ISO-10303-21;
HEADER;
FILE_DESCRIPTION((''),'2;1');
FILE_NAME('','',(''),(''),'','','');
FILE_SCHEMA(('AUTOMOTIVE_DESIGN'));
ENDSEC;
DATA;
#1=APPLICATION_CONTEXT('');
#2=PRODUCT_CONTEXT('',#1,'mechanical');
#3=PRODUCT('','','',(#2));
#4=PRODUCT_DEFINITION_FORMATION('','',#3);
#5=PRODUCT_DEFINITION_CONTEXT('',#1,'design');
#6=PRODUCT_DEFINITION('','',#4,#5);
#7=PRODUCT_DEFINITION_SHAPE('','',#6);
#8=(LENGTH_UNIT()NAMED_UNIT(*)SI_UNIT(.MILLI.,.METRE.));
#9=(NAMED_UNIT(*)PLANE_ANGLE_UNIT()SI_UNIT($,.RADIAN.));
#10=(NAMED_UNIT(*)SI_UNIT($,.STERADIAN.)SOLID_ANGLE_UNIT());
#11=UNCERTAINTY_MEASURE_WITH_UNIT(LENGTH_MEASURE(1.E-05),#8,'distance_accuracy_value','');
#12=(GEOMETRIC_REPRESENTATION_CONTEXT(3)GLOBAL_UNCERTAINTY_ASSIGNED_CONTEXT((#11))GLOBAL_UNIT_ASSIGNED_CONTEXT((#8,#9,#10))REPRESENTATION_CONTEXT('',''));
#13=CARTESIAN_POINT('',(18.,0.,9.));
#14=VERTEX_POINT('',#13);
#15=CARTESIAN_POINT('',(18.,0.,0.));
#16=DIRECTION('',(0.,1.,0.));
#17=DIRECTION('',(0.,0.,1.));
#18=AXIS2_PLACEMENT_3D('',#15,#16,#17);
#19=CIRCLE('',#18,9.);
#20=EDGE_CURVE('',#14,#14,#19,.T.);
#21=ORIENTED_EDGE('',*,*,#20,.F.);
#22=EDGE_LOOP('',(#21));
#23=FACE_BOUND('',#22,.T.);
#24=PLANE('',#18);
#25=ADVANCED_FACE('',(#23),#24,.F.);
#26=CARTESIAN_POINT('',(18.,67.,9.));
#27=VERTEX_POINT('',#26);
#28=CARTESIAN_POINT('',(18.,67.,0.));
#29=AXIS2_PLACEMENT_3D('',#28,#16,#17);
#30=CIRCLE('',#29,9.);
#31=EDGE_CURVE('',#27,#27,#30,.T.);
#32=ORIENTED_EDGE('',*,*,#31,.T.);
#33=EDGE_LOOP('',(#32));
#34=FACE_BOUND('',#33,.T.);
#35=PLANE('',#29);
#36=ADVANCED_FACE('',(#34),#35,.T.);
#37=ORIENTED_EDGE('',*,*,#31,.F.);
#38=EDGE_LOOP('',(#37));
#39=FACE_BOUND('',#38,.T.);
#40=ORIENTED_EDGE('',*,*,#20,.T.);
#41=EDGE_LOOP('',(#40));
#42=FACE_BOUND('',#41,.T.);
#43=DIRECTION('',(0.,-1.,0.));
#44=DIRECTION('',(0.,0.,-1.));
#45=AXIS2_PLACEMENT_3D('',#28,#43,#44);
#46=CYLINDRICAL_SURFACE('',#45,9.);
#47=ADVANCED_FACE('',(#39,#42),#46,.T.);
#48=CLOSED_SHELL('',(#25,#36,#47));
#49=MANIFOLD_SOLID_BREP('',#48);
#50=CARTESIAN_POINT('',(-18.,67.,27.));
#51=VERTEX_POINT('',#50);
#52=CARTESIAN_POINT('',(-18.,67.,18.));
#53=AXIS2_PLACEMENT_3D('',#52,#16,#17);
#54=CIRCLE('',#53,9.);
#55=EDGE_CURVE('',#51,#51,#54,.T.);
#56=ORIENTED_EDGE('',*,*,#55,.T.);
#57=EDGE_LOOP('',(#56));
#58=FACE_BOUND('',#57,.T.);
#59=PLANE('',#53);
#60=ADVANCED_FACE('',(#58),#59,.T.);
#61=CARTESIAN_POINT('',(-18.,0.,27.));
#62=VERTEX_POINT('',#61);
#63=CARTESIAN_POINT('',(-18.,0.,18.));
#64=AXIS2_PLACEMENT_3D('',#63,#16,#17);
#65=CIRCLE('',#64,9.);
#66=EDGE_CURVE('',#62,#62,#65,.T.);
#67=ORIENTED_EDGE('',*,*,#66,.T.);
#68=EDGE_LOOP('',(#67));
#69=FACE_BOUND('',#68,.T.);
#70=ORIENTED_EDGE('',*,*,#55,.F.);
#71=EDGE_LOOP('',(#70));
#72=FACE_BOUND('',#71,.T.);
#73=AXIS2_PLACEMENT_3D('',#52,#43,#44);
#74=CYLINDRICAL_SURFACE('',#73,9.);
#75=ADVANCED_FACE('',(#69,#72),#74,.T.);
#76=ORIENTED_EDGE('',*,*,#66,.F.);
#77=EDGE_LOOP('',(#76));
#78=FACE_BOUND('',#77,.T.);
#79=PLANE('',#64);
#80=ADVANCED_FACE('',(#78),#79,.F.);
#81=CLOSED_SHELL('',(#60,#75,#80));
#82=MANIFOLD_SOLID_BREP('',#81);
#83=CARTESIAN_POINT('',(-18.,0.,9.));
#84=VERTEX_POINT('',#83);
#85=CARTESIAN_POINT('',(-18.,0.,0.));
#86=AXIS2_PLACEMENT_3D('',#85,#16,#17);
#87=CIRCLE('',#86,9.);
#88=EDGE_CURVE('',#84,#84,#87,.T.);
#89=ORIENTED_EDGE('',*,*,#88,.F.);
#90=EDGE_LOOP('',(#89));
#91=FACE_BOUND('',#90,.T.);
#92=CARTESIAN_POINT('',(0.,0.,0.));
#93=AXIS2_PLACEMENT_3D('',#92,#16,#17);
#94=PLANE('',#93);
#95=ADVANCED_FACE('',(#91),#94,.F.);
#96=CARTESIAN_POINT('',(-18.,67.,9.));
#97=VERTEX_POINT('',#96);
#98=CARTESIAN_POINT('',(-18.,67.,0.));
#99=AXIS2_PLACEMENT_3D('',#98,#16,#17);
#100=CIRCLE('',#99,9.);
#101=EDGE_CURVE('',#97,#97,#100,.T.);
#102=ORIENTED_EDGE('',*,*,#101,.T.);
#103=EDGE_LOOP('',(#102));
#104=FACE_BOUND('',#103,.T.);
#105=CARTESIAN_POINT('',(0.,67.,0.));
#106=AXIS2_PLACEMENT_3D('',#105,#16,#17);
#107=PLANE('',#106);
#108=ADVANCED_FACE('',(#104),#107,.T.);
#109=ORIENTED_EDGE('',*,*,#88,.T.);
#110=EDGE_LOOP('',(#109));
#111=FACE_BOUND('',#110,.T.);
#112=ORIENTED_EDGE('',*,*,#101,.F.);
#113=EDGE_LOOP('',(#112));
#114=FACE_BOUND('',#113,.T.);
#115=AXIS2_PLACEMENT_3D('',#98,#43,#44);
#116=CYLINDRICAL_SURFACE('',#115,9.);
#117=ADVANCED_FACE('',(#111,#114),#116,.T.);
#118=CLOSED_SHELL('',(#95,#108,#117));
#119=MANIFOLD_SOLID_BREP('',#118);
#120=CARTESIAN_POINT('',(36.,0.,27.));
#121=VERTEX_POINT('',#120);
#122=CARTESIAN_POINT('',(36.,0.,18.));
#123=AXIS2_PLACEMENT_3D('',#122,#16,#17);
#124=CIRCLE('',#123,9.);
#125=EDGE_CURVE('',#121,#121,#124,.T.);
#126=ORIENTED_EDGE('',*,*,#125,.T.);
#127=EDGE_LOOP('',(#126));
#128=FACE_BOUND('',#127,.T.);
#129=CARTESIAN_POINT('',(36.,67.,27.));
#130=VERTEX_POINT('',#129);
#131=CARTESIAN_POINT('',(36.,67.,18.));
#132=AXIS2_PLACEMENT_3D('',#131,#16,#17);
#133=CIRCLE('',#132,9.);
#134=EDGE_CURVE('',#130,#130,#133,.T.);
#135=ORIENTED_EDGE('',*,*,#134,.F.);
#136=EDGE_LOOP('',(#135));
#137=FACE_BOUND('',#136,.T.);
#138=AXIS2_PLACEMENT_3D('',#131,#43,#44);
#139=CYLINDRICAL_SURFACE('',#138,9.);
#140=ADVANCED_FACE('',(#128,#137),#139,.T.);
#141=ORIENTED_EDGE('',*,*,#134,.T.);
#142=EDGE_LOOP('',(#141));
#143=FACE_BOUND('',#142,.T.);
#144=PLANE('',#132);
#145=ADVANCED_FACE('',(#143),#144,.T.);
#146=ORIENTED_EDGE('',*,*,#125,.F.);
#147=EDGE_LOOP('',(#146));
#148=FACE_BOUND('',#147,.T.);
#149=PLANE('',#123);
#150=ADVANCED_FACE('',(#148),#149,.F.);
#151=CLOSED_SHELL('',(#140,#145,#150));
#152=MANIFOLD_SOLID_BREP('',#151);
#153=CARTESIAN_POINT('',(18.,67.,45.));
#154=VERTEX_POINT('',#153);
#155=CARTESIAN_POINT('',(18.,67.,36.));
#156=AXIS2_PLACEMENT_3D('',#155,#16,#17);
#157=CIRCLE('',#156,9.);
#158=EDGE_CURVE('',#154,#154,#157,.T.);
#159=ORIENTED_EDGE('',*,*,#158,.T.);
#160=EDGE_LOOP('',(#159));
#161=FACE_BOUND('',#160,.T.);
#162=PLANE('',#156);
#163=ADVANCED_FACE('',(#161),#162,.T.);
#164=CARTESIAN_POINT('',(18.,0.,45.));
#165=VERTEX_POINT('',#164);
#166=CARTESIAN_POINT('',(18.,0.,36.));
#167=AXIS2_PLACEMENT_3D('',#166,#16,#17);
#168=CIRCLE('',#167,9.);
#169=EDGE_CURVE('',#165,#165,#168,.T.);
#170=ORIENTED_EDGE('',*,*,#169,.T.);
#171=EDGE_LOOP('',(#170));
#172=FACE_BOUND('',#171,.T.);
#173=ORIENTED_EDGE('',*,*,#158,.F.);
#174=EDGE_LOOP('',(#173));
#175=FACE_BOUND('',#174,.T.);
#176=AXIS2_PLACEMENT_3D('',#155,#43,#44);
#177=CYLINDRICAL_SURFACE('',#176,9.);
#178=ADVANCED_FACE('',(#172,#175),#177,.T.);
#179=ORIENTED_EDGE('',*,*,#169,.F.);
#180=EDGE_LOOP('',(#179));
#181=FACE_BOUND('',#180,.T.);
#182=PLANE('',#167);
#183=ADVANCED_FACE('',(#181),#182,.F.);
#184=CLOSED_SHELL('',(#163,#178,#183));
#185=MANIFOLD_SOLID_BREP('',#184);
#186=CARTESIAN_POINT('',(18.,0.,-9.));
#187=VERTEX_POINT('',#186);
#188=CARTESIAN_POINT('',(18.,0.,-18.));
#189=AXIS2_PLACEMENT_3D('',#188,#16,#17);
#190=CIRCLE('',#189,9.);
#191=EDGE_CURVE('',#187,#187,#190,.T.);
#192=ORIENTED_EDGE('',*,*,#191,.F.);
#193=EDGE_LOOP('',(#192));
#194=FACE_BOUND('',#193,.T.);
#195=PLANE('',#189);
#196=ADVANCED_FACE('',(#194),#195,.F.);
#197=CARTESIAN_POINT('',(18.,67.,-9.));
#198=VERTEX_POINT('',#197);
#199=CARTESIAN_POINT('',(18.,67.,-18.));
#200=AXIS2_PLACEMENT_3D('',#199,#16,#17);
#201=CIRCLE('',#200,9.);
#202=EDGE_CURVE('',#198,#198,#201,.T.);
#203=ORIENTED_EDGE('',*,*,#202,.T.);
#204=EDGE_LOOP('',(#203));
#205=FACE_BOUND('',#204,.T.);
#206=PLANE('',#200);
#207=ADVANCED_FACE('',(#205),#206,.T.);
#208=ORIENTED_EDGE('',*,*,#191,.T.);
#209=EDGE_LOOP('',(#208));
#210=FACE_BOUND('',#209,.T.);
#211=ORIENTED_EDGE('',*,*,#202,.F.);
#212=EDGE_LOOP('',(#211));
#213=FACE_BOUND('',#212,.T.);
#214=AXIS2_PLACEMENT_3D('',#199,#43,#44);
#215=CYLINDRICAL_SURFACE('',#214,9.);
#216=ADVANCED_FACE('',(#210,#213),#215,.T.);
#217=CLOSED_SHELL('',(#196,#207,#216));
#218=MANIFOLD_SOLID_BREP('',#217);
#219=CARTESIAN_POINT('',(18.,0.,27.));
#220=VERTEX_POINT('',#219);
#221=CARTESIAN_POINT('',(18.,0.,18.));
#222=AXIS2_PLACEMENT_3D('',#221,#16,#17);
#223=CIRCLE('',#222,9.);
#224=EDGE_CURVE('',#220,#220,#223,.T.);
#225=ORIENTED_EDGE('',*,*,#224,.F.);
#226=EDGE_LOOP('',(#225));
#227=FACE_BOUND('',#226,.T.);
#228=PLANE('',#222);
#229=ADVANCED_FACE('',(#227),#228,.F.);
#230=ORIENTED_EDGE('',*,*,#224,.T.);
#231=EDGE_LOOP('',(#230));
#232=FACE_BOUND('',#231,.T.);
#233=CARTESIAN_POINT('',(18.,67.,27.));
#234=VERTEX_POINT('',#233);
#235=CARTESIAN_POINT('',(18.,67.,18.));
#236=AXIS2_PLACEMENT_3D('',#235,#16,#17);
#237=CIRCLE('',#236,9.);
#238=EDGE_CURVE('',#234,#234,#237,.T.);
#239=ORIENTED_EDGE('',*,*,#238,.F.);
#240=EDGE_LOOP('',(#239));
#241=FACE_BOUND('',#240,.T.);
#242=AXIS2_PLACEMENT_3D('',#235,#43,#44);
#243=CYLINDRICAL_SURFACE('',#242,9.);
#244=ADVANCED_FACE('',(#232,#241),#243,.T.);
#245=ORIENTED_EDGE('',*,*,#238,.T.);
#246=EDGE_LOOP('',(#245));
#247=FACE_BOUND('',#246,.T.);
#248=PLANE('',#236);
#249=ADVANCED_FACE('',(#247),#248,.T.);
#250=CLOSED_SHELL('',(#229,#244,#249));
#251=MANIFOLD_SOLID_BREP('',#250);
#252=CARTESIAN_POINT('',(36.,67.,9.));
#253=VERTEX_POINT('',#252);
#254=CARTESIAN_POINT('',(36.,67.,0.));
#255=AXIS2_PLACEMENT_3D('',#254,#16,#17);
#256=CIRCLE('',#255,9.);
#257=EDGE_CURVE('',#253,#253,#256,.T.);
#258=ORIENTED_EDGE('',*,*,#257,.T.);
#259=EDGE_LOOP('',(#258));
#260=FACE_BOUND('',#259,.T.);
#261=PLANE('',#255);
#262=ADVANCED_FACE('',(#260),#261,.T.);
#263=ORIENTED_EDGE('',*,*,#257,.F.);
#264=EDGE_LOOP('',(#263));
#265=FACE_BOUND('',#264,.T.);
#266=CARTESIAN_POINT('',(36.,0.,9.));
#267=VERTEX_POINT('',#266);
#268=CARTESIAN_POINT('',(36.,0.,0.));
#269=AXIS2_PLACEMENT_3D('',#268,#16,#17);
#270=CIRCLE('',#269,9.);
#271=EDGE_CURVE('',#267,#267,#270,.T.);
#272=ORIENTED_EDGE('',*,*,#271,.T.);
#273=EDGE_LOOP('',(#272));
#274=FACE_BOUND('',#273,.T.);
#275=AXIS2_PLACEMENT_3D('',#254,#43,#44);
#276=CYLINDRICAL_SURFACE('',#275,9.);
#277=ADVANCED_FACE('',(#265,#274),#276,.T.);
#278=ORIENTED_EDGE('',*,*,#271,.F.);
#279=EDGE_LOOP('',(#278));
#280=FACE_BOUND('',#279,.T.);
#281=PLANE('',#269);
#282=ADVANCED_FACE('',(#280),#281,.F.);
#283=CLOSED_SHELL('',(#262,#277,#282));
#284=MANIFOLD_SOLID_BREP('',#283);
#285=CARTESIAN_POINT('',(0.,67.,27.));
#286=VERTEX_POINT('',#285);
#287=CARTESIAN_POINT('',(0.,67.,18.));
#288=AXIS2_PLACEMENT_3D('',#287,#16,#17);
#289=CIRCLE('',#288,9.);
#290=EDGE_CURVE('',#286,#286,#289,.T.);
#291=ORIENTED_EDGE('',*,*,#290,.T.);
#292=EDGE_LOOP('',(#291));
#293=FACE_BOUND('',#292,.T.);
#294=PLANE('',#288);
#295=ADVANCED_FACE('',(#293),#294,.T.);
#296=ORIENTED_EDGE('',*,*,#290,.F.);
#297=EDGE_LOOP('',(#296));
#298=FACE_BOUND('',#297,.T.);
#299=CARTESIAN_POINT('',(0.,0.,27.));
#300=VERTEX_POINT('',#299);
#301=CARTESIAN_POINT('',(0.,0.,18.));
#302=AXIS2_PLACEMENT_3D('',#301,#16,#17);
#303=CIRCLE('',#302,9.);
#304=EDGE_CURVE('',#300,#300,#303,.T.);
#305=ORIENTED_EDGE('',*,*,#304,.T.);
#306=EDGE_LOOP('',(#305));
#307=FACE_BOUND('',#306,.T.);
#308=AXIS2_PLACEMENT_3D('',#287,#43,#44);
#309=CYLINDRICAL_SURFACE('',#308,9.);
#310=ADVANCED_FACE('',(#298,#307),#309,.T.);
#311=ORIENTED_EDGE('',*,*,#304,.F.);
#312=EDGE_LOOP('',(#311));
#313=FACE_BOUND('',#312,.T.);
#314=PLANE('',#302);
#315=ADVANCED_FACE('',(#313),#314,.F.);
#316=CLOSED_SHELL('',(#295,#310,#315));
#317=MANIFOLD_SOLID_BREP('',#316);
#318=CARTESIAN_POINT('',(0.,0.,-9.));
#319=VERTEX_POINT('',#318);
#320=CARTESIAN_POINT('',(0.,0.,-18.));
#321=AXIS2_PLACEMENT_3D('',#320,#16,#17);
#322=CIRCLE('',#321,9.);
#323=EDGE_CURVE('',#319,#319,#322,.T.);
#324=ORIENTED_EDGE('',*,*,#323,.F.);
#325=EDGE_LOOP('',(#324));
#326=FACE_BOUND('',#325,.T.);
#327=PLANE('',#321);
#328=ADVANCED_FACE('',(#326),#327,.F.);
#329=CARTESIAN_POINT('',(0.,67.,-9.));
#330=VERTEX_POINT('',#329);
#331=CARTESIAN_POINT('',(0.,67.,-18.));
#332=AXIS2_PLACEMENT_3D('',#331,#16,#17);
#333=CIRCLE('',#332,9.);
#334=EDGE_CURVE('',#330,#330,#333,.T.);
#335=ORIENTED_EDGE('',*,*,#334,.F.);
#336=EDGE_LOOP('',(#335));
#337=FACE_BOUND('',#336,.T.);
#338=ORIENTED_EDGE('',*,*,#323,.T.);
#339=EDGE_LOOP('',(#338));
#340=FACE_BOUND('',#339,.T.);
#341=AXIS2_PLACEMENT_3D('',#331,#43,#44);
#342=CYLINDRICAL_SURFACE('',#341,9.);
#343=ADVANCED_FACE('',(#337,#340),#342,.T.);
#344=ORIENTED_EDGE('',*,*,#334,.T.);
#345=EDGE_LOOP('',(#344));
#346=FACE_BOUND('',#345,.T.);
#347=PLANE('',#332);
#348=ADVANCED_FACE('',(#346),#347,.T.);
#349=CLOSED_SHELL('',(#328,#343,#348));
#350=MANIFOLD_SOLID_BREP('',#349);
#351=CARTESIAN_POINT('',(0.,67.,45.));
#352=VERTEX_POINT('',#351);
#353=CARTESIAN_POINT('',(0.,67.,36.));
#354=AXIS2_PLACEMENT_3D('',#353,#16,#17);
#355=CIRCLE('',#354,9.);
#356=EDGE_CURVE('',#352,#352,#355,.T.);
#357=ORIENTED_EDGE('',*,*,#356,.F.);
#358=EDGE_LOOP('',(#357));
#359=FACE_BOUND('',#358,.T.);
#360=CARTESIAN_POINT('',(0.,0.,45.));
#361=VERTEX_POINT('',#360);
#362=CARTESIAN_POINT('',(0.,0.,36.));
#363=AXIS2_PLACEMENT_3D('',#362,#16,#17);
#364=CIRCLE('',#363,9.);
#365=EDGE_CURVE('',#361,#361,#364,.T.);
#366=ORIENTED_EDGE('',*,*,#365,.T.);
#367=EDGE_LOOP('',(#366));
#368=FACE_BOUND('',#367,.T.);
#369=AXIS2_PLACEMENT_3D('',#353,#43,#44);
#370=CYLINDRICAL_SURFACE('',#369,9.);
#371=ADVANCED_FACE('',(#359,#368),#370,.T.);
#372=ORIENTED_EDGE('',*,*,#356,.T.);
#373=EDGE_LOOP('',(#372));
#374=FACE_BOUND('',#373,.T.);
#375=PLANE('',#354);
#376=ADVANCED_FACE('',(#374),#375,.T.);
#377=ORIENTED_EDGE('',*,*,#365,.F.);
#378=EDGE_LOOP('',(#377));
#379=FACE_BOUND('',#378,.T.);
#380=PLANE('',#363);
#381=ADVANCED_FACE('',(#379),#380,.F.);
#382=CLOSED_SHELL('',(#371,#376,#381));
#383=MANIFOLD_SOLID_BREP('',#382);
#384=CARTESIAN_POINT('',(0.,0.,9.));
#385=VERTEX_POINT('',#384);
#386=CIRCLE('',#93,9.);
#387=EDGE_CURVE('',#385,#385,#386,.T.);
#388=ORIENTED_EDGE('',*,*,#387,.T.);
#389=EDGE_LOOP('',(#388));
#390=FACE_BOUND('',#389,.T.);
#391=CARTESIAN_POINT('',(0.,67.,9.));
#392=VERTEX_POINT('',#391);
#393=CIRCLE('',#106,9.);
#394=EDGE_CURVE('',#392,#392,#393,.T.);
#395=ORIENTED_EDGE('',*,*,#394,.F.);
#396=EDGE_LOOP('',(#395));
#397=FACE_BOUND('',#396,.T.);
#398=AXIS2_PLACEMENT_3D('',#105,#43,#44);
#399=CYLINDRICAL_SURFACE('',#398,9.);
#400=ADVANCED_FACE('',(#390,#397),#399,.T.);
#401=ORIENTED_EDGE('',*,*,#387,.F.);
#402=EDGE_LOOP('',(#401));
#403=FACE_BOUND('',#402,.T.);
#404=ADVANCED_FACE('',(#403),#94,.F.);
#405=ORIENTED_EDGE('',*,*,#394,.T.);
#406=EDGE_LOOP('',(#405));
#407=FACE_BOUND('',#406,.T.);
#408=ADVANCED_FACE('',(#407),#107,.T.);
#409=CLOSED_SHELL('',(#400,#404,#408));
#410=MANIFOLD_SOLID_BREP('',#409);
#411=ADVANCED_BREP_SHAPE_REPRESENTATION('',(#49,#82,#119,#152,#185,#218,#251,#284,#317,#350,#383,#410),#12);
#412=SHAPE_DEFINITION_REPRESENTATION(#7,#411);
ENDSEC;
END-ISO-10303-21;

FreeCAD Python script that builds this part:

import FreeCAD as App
import Part
import Sketcher
from FreeCAD import Vector

doc = App.newDocument("Part")
body = doc.addObject("PartDesign::Body", "Body")

sketch1 = body.newObject("Sketcher::SketchObject", "Sketch")
sketch1.AttachmentSupport = (doc.getObject("XZ_Plane"), [""])
sketch1.MapMode = "FlatFace"
sketch1.addGeometry(Part.Circle(Vector(-18, 0, 0), Vector(0, 0, 1), 9), False)
sketch1.addConstraint([
    Sketcher.Constraint("PointOnObject", 0, 3, -1),
    Sketcher.Constraint("Diameter", 0, 18.0),
    Sketcher.Constraint("DistanceX", 0, 3, -1, 1, 18.0),
])
pad1 = body.newObject("PartDesign::Pad", "Pad")
pad1.Profile = sketch1
pad1.Length = 67
pad1.Reversed = True
body2 = doc.addObject("PartDesign::Body", "Body001")

sketch2 = body2.newObject("Sketcher::SketchObject", "Sketch001")
sketch2.AttachmentSupport = (doc.getObject("XZ_Plane001"), [""])
sketch2.MapMode = "FlatFace"
sketch2.addGeometry(Part.Circle(Vector(18, -18, 0), Vector(0, 0, 1), 9), False)
sketch2.addConstraint([
    Sketcher.Constraint("Diameter", 0, 18.0),
    Sketcher.Constraint("DistanceX", -1, 1, 0, 3, 18.0),
    Sketcher.Constraint("DistanceY", 0, 3, -1, 1, 18.0),
])
pad2 = body2.newObject("PartDesign::Pad", "Pad001")
pad2.Profile = sketch2
pad2.Length = 67
pad2.Reversed = True
body3 = doc.addObject("PartDesign::Body", "Body002")

sketch3 = body3.newObject("Sketcher::SketchObject", "Sketch002")
sketch3.AttachmentSupport = (doc.getObject("XZ_Plane002"), [""])
sketch3.MapMode = "FlatFace"
sketch3.addGeometry(Part.Circle(Vector(0, -18, 0), Vector(0, 0, 1), 9), False)
sketch3.addConstraint([
    Sketcher.Constraint("PointOnObject", 0, 3, -2),
    Sketcher.Constraint("Diameter", 0, 18.0),
    Sketcher.Constraint("DistanceY", 0, 3, -1, 1, 18.0),
])
pad3 = body3.newObject("PartDesign::Pad", "Pad002")
pad3.Profile = sketch3
pad3.Length = 67
pad3.Reversed = True
body4 = doc.addObject("PartDesign::Body", "Body003")

sketch4 = body4.newObject("Sketcher::SketchObject", "Sketch003")
sketch4.AttachmentSupport = (doc.getObject("XZ_Plane003"), [""])
sketch4.MapMode = "FlatFace"
sketch4.addGeometry(Part.Circle(Vector(0, 0, 0), Vector(0, 0, 1), 9), False)
sketch4.addConstraint([
    Sketcher.Constraint("Coincident", 0, 3, -1, 1),
    Sketcher.Constraint("Diameter", 0, 18.0),
])
pad4 = body4.newObject("PartDesign::Pad", "Pad003")
pad4.Profile = sketch4
pad4.Length = 67
pad4.Reversed = True
body5 = doc.addObject("PartDesign::Body", "Body004")

sketch5 = body5.newObject("Sketcher::SketchObject", "Sketch004")
sketch5.AttachmentSupport = (doc.getObject("XZ_Plane004"), [""])
sketch5.MapMode = "FlatFace"
sketch5.addGeometry(Part.Circle(Vector(18, 0, 0), Vector(0, 0, 1), 9), False)
sketch5.addConstraint([
    Sketcher.Constraint("PointOnObject", 0, 3, -1),
    Sketcher.Constraint("Diameter", 0, 18.0),
    Sketcher.Constraint("DistanceX", -1, 1, 0, 3, 18.0),
])
pad5 = body5.newObject("PartDesign::Pad", "Pad004")
pad5.Profile = sketch5
pad5.Length = 67
pad5.Reversed = True
body6 = doc.addObject("PartDesign::Body", "Body005")

sketch6 = body6.newObject("Sketcher::SketchObject", "Sketch005")
sketch6.AttachmentSupport = (doc.getObject("XZ_Plane005"), [""])
sketch6.MapMode = "FlatFace"
sketch6.addGeometry(Part.Circle(Vector(36, 0, 0), Vector(0, 0, 1), 9), False)
sketch6.addConstraint([
    Sketcher.Constraint("PointOnObject", 0, 3, -1),
    Sketcher.Constraint("Diameter", 0, 18.0),
    Sketcher.Constraint("DistanceX", -1, 1, 0, 3, 36.0),
])
pad6 = body6.newObject("PartDesign::Pad", "Pad005")
pad6.Profile = sketch6
pad6.Length = 67
pad6.Reversed = True
body7 = doc.addObject("PartDesign::Body", "Body006")

sketch7 = body7.newObject("Sketcher::SketchObject", "Sketch006")
sketch7.AttachmentSupport = (doc.getObject("XZ_Plane006"), [""])
sketch7.MapMode = "FlatFace"
sketch7.addGeometry(Part.Circle(Vector(18, 18, 0), Vector(0, 0, 1), 9), False)
sketch7.addConstraint([
    Sketcher.Constraint("Diameter", 0, 18.0),
    Sketcher.Constraint("DistanceX", -1, 1, 0, 3, 18.0),
    Sketcher.Constraint("DistanceY", -1, 1, 0, 3, 18.0),
])
pad7 = body7.newObject("PartDesign::Pad", "Pad006")
pad7.Profile = sketch7
pad7.Length = 67
pad7.Reversed = True
body8 = doc.addObject("PartDesign::Body", "Body007")

sketch8 = body8.newObject("Sketcher::SketchObject", "Sketch007")
sketch8.AttachmentSupport = (doc.getObject("XZ_Plane007"), [""])
sketch8.MapMode = "FlatFace"
sketch8.addGeometry(Part.Circle(Vector(36, 18, 0), Vector(0, 0, 1), 9), False)
sketch8.addConstraint([
    Sketcher.Constraint("Diameter", 0, 18.0),
    Sketcher.Constraint("DistanceX", -1, 1, 0, 3, 36.0),
    Sketcher.Constraint("DistanceY", -1, 1, 0, 3, 18.0),
])
pad8 = body8.newObject("PartDesign::Pad", "Pad007")
pad8.Profile = sketch8
pad8.Length = 67
pad8.Reversed = True
body9 = doc.addObject("PartDesign::Body", "Body008")

sketch9 = body9.newObject("Sketcher::SketchObject", "Sketch008")
sketch9.AttachmentSupport = (doc.getObject("XZ_Plane008"), [""])
sketch9.MapMode = "FlatFace"
sketch9.addGeometry(Part.Circle(Vector(-18, 18, 0), Vector(0, 0, 1), 9), False)
sketch9.addConstraint([
    Sketcher.Constraint("Diameter", 0, 18.0),
    Sketcher.Constraint("DistanceX", 0, 3, -1, 1, 18.0),
    Sketcher.Constraint("DistanceY", -1, 1, 0, 3, 18.0),
])
pad9 = body9.newObject("PartDesign::Pad", "Pad008")
pad9.Profile = sketch9
pad9.Length = 67
pad9.Reversed = True
body10 = doc.addObject("PartDesign::Body", "Body009")

sketch10 = body10.newObject("Sketcher::SketchObject", "Sketch009")
sketch10.AttachmentSupport = (doc.getObject("XZ_Plane009"), [""])
sketch10.MapMode = "FlatFace"
sketch10.addGeometry(Part.Circle(Vector(0, 18, 0), Vector(0, 0, 1), 9), False)
sketch10.addConstraint([
    Sketcher.Constraint("PointOnObject", 0, 3, -2),
    Sketcher.Constraint("Diameter", 0, 18.0),
    Sketcher.Constraint("DistanceY", -1, 1, 0, 3, 18.0),
])
pad10 = body10.newObject("PartDesign::Pad", "Pad009")
pad10.Profile = sketch10
pad10.Length = 67
pad10.Reversed = True
body11 = doc.addObject("PartDesign::Body", "Body010")

sketch11 = body11.newObject("Sketcher::SketchObject", "Sketch010")
sketch11.AttachmentSupport = (doc.getObject("XZ_Plane010"), [""])
sketch11.MapMode = "FlatFace"
sketch11.addGeometry(Part.Circle(Vector(0, 36, 0), Vector(0, 0, 1), 9), False)
sketch11.addConstraint([
    Sketcher.Constraint("PointOnObject", 0, 3, -2),
    Sketcher.Constraint("Diameter", 0, 18.0),
    Sketcher.Constraint("DistanceY", -1, 1, 0, 3, 36.0),
])
pad11 = body11.newObject("PartDesign::Pad", "Pad010")
pad11.Profile = sketch11
pad11.Length = 67
pad11.Reversed = True
body12 = doc.addObject("PartDesign::Body", "Body011")

sketch12 = body12.newObject("Sketcher::SketchObject", "Sketch011")
sketch12.AttachmentSupport = (doc.getObject("XZ_Plane011"), [""])
sketch12.MapMode = "FlatFace"
sketch12.addGeometry(Part.Circle(Vector(18, 36, 0), Vector(0, 0, 1), 9), False)
sketch12.addConstraint([
    Sketcher.Constraint("Diameter", 0, 18.0),
    Sketcher.Constraint("DistanceX", -1, 1, 0, 3, 18.0),
    Sketcher.Constraint("DistanceY", -1, 1, 0, 3, 36.0),
])
pad12 = body12.newObject("PartDesign::Pad", "Pad011")
pad12.Profile = sketch12
pad12.Length = 67
pad12.Reversed = True

doc.recompute()
